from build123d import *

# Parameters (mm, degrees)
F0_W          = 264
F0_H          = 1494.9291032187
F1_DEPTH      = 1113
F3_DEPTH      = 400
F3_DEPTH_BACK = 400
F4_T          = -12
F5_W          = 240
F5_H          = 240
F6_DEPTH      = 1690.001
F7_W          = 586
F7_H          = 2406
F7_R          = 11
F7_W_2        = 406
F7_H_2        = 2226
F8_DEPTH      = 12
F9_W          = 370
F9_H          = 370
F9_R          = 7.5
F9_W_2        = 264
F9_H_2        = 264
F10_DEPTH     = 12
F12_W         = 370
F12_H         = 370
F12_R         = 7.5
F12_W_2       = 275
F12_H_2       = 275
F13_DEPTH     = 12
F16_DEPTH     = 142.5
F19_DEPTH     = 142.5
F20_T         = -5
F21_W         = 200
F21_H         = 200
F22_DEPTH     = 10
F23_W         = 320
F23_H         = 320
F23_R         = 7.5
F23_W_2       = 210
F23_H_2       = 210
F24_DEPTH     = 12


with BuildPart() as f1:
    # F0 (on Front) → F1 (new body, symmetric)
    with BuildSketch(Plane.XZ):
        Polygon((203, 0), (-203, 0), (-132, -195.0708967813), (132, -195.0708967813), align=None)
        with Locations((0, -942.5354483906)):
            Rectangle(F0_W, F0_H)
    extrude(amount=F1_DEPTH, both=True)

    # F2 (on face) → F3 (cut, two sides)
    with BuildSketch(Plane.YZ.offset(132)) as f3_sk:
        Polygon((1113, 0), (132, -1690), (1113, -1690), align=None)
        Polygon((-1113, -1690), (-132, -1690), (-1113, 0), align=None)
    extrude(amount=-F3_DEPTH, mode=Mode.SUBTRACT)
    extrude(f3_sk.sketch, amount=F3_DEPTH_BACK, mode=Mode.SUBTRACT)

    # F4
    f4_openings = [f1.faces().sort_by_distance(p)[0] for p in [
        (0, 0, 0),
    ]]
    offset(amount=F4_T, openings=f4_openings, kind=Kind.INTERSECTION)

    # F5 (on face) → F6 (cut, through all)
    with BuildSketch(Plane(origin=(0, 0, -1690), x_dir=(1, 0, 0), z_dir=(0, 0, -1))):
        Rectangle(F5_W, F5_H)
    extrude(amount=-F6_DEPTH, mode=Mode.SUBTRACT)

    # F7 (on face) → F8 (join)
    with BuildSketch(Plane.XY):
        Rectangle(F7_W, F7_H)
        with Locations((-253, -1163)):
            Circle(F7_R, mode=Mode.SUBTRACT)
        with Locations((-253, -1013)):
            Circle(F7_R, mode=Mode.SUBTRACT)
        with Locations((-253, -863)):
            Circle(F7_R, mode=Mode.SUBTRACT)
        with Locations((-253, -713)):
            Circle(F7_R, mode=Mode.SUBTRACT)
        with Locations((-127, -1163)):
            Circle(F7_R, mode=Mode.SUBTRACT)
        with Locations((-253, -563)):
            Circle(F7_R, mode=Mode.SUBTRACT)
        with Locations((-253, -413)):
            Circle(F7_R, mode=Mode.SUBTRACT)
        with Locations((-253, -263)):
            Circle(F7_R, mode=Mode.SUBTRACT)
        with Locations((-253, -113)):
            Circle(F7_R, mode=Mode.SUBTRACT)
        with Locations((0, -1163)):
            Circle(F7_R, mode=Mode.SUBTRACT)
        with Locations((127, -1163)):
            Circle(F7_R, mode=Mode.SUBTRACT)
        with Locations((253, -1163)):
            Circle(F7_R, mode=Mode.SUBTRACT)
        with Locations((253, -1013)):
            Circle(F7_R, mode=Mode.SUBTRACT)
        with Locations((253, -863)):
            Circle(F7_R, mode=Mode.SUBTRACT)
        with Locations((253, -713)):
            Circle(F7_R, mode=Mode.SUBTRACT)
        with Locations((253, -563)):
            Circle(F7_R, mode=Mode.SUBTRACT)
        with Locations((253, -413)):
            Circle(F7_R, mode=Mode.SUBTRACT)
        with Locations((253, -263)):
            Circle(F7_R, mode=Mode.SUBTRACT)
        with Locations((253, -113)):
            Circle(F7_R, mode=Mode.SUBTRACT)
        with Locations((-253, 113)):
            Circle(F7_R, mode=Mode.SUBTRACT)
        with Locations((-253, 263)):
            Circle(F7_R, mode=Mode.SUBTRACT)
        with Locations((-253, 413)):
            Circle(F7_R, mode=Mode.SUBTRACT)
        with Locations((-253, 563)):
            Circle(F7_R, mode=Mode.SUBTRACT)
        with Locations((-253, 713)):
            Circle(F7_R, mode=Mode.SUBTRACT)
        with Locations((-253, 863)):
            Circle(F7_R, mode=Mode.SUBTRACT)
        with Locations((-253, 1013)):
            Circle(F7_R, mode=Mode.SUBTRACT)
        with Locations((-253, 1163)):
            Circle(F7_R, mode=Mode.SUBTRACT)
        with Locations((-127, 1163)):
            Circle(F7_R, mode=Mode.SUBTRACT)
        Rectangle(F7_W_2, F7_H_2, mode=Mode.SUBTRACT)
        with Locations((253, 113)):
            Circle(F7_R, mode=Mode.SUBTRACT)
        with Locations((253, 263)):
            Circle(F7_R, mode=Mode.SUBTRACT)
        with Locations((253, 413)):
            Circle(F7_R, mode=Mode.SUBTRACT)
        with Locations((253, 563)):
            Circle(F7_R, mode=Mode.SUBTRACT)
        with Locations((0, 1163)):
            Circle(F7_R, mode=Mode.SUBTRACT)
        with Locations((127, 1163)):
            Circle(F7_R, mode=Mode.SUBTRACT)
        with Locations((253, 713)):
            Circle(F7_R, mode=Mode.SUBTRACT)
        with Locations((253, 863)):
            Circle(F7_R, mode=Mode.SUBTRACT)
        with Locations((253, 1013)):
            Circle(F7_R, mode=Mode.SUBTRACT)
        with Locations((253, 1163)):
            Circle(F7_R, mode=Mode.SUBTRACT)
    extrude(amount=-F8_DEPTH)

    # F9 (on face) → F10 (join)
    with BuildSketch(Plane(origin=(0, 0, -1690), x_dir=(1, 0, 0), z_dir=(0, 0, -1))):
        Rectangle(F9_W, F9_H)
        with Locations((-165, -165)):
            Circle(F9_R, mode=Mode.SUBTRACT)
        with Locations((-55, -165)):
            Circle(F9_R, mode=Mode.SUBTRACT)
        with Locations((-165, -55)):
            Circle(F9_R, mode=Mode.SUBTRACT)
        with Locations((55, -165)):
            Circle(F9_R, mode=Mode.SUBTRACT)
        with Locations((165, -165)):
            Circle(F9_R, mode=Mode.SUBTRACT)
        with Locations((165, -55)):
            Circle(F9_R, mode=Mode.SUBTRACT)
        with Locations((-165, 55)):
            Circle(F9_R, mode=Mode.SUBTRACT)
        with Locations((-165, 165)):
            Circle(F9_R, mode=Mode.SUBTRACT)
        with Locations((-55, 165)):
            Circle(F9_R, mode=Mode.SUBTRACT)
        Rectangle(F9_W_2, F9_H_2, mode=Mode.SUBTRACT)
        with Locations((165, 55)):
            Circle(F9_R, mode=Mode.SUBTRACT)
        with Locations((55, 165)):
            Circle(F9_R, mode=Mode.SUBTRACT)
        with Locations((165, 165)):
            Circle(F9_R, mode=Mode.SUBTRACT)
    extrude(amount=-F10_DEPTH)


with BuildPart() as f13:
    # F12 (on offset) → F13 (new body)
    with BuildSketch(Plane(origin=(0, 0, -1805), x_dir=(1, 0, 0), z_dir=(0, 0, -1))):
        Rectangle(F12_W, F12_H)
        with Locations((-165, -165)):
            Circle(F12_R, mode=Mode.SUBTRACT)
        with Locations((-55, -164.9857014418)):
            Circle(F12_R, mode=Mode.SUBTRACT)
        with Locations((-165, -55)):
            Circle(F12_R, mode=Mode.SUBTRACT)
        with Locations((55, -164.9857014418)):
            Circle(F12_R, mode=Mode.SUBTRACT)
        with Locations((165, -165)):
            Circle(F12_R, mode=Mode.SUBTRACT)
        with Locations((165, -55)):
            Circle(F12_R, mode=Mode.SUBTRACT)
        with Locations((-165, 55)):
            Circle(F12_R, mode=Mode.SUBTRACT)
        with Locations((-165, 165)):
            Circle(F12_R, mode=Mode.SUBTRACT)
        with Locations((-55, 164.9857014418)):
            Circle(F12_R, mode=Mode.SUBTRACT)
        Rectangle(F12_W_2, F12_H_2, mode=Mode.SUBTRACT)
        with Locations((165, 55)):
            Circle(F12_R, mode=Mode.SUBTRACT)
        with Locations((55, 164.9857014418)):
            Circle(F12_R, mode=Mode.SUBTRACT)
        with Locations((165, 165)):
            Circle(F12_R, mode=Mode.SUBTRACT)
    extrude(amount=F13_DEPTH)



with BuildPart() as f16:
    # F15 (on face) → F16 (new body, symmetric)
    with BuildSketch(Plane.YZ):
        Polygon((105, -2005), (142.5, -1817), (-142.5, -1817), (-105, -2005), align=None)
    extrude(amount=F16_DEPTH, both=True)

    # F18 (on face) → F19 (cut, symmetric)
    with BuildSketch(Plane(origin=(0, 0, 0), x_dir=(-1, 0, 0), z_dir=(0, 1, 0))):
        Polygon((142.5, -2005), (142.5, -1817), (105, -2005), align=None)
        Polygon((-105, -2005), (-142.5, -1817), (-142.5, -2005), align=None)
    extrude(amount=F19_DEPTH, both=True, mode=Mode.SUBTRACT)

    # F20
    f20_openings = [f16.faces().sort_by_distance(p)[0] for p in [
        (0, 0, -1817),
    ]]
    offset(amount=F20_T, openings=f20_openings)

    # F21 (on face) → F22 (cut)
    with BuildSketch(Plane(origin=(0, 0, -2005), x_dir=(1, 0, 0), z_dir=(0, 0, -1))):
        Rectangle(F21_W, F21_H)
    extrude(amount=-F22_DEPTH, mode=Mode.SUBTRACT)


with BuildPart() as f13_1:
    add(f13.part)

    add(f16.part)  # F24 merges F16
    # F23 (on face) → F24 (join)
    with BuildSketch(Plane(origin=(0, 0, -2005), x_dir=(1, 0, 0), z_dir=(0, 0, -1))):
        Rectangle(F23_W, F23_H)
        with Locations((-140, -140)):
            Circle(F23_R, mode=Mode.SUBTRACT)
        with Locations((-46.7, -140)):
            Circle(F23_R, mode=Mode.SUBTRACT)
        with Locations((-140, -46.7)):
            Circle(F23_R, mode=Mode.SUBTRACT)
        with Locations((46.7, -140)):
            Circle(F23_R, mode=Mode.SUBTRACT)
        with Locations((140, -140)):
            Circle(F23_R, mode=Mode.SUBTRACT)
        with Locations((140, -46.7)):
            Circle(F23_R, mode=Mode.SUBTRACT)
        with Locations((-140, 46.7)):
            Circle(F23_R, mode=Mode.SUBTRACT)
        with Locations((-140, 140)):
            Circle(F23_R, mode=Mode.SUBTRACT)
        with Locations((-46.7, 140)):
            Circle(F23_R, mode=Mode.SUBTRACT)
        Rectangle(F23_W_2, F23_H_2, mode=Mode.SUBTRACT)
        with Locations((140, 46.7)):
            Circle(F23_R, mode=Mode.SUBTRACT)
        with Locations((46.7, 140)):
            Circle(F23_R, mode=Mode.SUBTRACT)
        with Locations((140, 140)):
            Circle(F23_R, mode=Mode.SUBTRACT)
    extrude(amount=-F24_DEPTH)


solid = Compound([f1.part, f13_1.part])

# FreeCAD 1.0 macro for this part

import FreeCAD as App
import Part
import Sketcher
from FreeCAD import Vector
Q = App.Units.Quantity


def faces_at(feature, points):
    """Names of the faces that lie closest to the given points."""
    faces = feature.Shape.Faces
    near = lambda p: min(range(len(faces)), key=lambda i: faces[i].distToShape(Part.Vertex(*p))[0])
    return sorted({f"Face{near(p) + 1}" for p in points})


def add_polygon(sketch, points):
    """Adds a closed chain of lines whose ends are joined by coincident constraints."""
    first, n = sketch.GeometryCount, len(points)
    for a, b in zip(points, points[1:] + points[:1]):
        sketch.addGeometry(Part.LineSegment(App.Vector(*a, 0), App.Vector(*b, 0)), False)
    for i in range(n):
        sketch.addConstraint(Sketcher.Constraint("Coincident", first + i, 2, first + (i + 1) % n, 1))

doc = App.newDocument("Part")
body = doc.addObject("PartDesign::Body", "Body")
body.AllowCompound = True

# Sketch on XZ plane
sketch1 = body.newObject("Sketcher::SketchObject", "Sketch")
sketch1.AttachmentSupport = (doc.getObject("XZ_Plane"), [""])
sketch1.MapMode = "FlatFace"
add_polygon(sketch1, [(203, 0), (-203, 0), (-132, -195), (-132, -1690), (132, -1690), (132, -195)])  # lines 0-5
sketch1.addConstraint(Sketcher.Constraint("Horizontal", 0))
sketch1.addConstraint(Sketcher.Constraint("Vertical", 2))
sketch1.addConstraint(Sketcher.Constraint("Horizontal", 3))
sketch1.addConstraint(Sketcher.Constraint("Vertical", 4))
sketch1.addConstraint(Sketcher.Constraint("Symmetric", 0, 2, 5, 2, -1, 1))
sketch1.addConstraint(Sketcher.Constraint("Symmetric", 1, 2, 4, 2, -2))
sketch1.addConstraint(Sketcher.Constraint("DistanceX", 0, 2, 0, 1, 406.0))
sketch1.addConstraint(Sketcher.Constraint("DistanceX", 3, 1, 3, 2, 264.0))
sketch1.addConstraint(Sketcher.Constraint("Angle", 1, Q("-70 deg")))
sketch1.addConstraint(Sketcher.Constraint("DistanceY", 2, 2, -1, 1, 1690.0))
pad1 = body.newObject("PartDesign::Pad", "Pad")
pad1.Profile = sketch1
pad1.Length = 2226
pad1.Midplane = True

# Sketch on YZ plane
sketch2 = body.newObject("Sketcher::SketchObject", "Sketch001")
sketch2.AttachmentSupport = (doc.getObject("YZ_Plane"), [""])
sketch2.MapMode = "FlatFace"
sketch2.AttachmentOffset = App.Placement(Vector(0, 0, 132), App.Rotation())
add_polygon(sketch2, [(1113, 0), (132, -1690), (1113, -1690)])  # lines 0-2
add_polygon(sketch2, [(-1113, -1690), (-132, -1690), (-1113, 0)])  # lines 3-5
sketch2.addConstraint(Sketcher.Constraint("Horizontal", 1))
sketch2.addConstraint(Sketcher.Constraint("Vertical", 2))
sketch2.addConstraint(Sketcher.Constraint("Horizontal", 3))
sketch2.addConstraint(Sketcher.Constraint("Vertical", 5))
sketch2.addConstraint(Sketcher.Constraint("Symmetric", 2, 2, 4, 2, -1, 1))
sketch2.addConstraint(Sketcher.Constraint("Symmetric", 0, 2, 3, 2, -2))
sketch2.addConstraint(Sketcher.Constraint("PointOnObject", 2, 2, -1))
sketch2.addConstraint(Sketcher.Constraint("DistanceX", 1, 1, 1, 2, 981.0))
sketch2.addConstraint(Sketcher.Constraint("DistanceY", 2, 1, 2, 2, 1690.0))
sketch2.addConstraint(Sketcher.Constraint("DistanceX", -1, 1, 0, 2, 132.0))
pocket1 = body.newObject("PartDesign::Pocket", "Pocket")
pocket1.Profile = sketch2
pocket1.Type = "ThroughAll"
pocket1.Midplane = True
doc.recompute()

thickness = body.newObject("PartDesign::Thickness", "Thickness")
thickness.Base = (pocket1, faces_at(pocket1, [(0, 0, 0)]))
thickness.Value = 12
thickness.Reversed = True
thickness.Join = "Intersection"

# Sketch on XY plane
sketch3 = body.newObject("Sketcher::SketchObject", "Sketch002")
sketch3.AttachmentSupport = (doc.getObject("XY_Plane"), [""])
sketch3.MapMode = "FlatFace"
sketch3.AttachmentOffset = App.Placement(Vector(0, 0, -1690), App.Rotation())
add_polygon(sketch3, [(-120, -120), (-120, 120), (120, 120), (120, -120)])  # lines 0-3
sketch3.addConstraint(Sketcher.Constraint("Vertical", 0))
sketch3.addConstraint(Sketcher.Constraint("Horizontal", 1))
sketch3.addConstraint(Sketcher.Constraint("Vertical", 2))
sketch3.addConstraint(Sketcher.Constraint("Horizontal", 3))
sketch3.addConstraint(Sketcher.Constraint("Symmetric", 0, 2, 2, 2, -1, 1))
sketch3.addConstraint(Sketcher.Constraint("Equal", 3, 0))
sketch3.addConstraint(Sketcher.Constraint("DistanceX", 1, 1, 1, 2, 240.0))
pocket2 = body.newObject("PartDesign::Pocket", "Pocket001")
pocket2.Profile = sketch3
pocket2.Type = "ThroughAll"
pocket2.Reversed = True

# Sketch on XY plane
sketch4 = body.newObject("Sketcher::SketchObject", "Sketch003")
sketch4.AttachmentSupport = (doc.getObject("XY_Plane"), [""])
sketch4.MapMode = "FlatFace"
add_polygon(sketch4, [(-293, 1203), (-293, -1203), (293, -1203), (293, 1203)])  # lines 0-3
sketch4.addGeometry(Part.Circle(Vector(-253, -1163, 0), Vector(0, 0, 1), 11), False)  # 4
sketch4.addGeometry(Part.Circle(Vector(-253, -1013, 0), Vector(0, 0, 1), 11), False)  # 5
sketch4.addGeometry(Part.Circle(Vector(-253, -863, 0), Vector(0, 0, 1), 11), False)  # 6
sketch4.addGeometry(Part.Circle(Vector(-253, -713, 0), Vector(0, 0, 1), 11), False)  # 7
sketch4.addGeometry(Part.Circle(Vector(-127, -1163, 0), Vector(0, 0, 1), 11), False)  # 8
sketch4.addGeometry(Part.Circle(Vector(-253, -563, 0), Vector(0, 0, 1), 11), False)  # 9
sketch4.addGeometry(Part.Circle(Vector(-253, -413, 0), Vector(0, 0, 1), 11), False)  # 10
sketch4.addGeometry(Part.Circle(Vector(-253, -263, 0), Vector(0, 0, 1), 11), False)  # 11
sketch4.addGeometry(Part.Circle(Vector(-253, -113, 0), Vector(0, 0, 1), 11), False)  # 12
sketch4.addGeometry(Part.Circle(Vector(0, -1163, 0), Vector(0, 0, 1), 11), False)  # 13
sketch4.addGeometry(Part.Circle(Vector(127, -1163, 0), Vector(0, 0, 1), 11), False)  # 14
sketch4.addGeometry(Part.Circle(Vector(253, -1163, 0), Vector(0, 0, 1), 11), False)  # 15
sketch4.addGeometry(Part.Circle(Vector(253, -1013, 0), Vector(0, 0, 1), 11), False)  # 16
sketch4.addGeometry(Part.Circle(Vector(253, -863, 0), Vector(0, 0, 1), 11), False)  # 17
sketch4.addGeometry(Part.Circle(Vector(253, -713, 0), Vector(0, 0, 1), 11), False)  # 18
sketch4.addGeometry(Part.Circle(Vector(253, -563, 0), Vector(0, 0, 1), 11), False)  # 19
sketch4.addGeometry(Part.Circle(Vector(253, -413, 0), Vector(0, 0, 1), 11), False)  # 20
sketch4.addGeometry(Part.Circle(Vector(253, -263, 0), Vector(0, 0, 1), 11), False)  # 21
sketch4.addGeometry(Part.Circle(Vector(253, -113, 0), Vector(0, 0, 1), 11), False)  # 22
sketch4.addGeometry(Part.Circle(Vector(-253, 113, 0), Vector(0, 0, 1), 11), False)  # 23
sketch4.addGeometry(Part.Circle(Vector(-253, 263, 0), Vector(0, 0, 1), 11), False)  # 24
sketch4.addGeometry(Part.Circle(Vector(-253, 413, 0), Vector(0, 0, 1), 11), False)  # 25
sketch4.addGeometry(Part.Circle(Vector(-253, 563, 0), Vector(0, 0, 1), 11), False)  # 26
sketch4.addGeometry(Part.Circle(Vector(-253, 713, 0), Vector(0, 0, 1), 11), False)  # 27
sketch4.addGeometry(Part.Circle(Vector(-253, 863, 0), Vector(0, 0, 1), 11), False)  # 28
sketch4.addGeometry(Part.Circle(Vector(-253, 1013, 0), Vector(0, 0, 1), 11), False)  # 29
sketch4.addGeometry(Part.Circle(Vector(-253, 1163, 0), Vector(0, 0, 1), 11), False)  # 30
sketch4.addGeometry(Part.Circle(Vector(-127, 1163, 0), Vector(0, 0, 1), 11), False)  # 31
add_polygon(sketch4, [(203, -1113), (-203, -1113), (-203, 1113), (203, 1113)])  # lines 32-35
sketch4.addGeometry(Part.Circle(Vector(253, 113, 0), Vector(0, 0, 1), 11), False)  # 36
sketch4.addGeometry(Part.Circle(Vector(253, 263, 0), Vector(0, 0, 1), 11), False)  # 37
sketch4.addGeometry(Part.Circle(Vector(253, 413, 0), Vector(0, 0, 1), 11), False)  # 38
sketch4.addGeometry(Part.Circle(Vector(253, 563, 0), Vector(0, 0, 1), 11), False)  # 39
sketch4.addGeometry(Part.Circle(Vector(0, 1163, 0), Vector(0, 0, 1), 11), False)  # 40
sketch4.addGeometry(Part.Circle(Vector(127, 1163, 0), Vector(0, 0, 1), 11), False)  # 41
sketch4.addGeometry(Part.Circle(Vector(253, 713, 0), Vector(0, 0, 1), 11), False)  # 42
sketch4.addGeometry(Part.Circle(Vector(253, 863, 0), Vector(0, 0, 1), 11), False)  # 43
sketch4.addGeometry(Part.Circle(Vector(253, 1013, 0), Vector(0, 0, 1), 11), False)  # 44
sketch4.addGeometry(Part.Circle(Vector(253, 1163, 0), Vector(0, 0, 1), 11), False)  # 45
sketch4.addConstraint(Sketcher.Constraint("Vertical", 0))
sketch4.addConstraint(Sketcher.Constraint("Horizontal", 1))
sketch4.addConstraint(Sketcher.Constraint("Vertical", 2))
sketch4.addConstraint(Sketcher.Constraint("Horizontal", 3))
sketch4.addConstraint(Sketcher.Constraint("Horizontal", 32))
sketch4.addConstraint(Sketcher.Constraint("Vertical", 33))
sketch4.addConstraint(Sketcher.Constraint("Horizontal", 34))
sketch4.addConstraint(Sketcher.Constraint("Vertical", 35))
sketch4.addConstraint(Sketcher.Constraint("Equal", 4, 5))
sketch4.addConstraint(Sketcher.Constraint("Equal", 5, 6))
sketch4.addConstraint(Sketcher.Constraint("Equal", 6, 7))
sketch4.addConstraint(Sketcher.Constraint("Equal", 7, 8))
sketch4.addConstraint(Sketcher.Constraint("Equal", 8, 9))
sketch4.addConstraint(Sketcher.Constraint("Equal", 9, 10))
sketch4.addConstraint(Sketcher.Constraint("Equal", 10, 11))
sketch4.addConstraint(Sketcher.Constraint("Equal", 11, 12))
sketch4.addConstraint(Sketcher.Constraint("Equal", 12, 13))
sketch4.addConstraint(Sketcher.Constraint("Equal", 13, 14))
sketch4.addConstraint(Sketcher.Constraint("Equal", 14, 15))
sketch4.addConstraint(Sketcher.Constraint("Equal", 15, 16))
sketch4.addConstraint(Sketcher.Constraint("Equal", 16, 17))
sketch4.addConstraint(Sketcher.Constraint("Equal", 17, 18))
sketch4.addConstraint(Sketcher.Constraint("Equal", 18, 19))
sketch4.addConstraint(Sketcher.Constraint("Equal", 19, 20))
sketch4.addConstraint(Sketcher.Constraint("Equal", 20, 21))
sketch4.addConstraint(Sketcher.Constraint("Equal", 21, 22))
sketch4.addConstraint(Sketcher.Constraint("Equal", 22, 23))
sketch4.addConstraint(Sketcher.Constraint("Equal", 23, 24))
sketch4.addConstraint(Sketcher.Constraint("Equal", 24, 25))
sketch4.addConstraint(Sketcher.Constraint("Equal", 25, 26))
sketch4.addConstraint(Sketcher.Constraint("Equal", 26, 27))
sketch4.addConstraint(Sketcher.Constraint("Equal", 27, 28))
sketch4.addConstraint(Sketcher.Constraint("Equal", 28, 29))
sketch4.addConstraint(Sketcher.Constraint("Equal", 29, 30))
sketch4.addConstraint(Sketcher.Constraint("Equal", 30, 31))
sketch4.addConstraint(Sketcher.Constraint("Equal", 31, 36))
sketch4.addConstraint(Sketcher.Constraint("Equal", 36, 37))
sketch4.addConstraint(Sketcher.Constraint("Equal", 37, 38))
sketch4.addConstraint(Sketcher.Constraint("Equal", 38, 39))
sketch4.addConstraint(Sketcher.Constraint("Equal", 39, 40))
sketch4.addConstraint(Sketcher.Constraint("Equal", 40, 41))
sketch4.addConstraint(Sketcher.Constraint("Equal", 41, 42))
sketch4.addConstraint(Sketcher.Constraint("Equal", 42, 43))
sketch4.addConstraint(Sketcher.Constraint("Equal", 43, 44))
sketch4.addConstraint(Sketcher.Constraint("Equal", 44, 45))
sketch4.addConstraint(Sketcher.Constraint("Symmetric", 22, 3, 23, 3, -1, 1))
sketch4.addConstraint(Sketcher.Constraint("Symmetric", 21, 3, 24, 3, -1, 1))
sketch4.addConstraint(Sketcher.Constraint("Symmetric", 20, 3, 25, 3, -1, 1))
sketch4.addConstraint(Sketcher.Constraint("Symmetric", 19, 3, 26, 3, -1, 1))
sketch4.addConstraint(Sketcher.Constraint("Symmetric", 18, 3, 27, 3, -1, 1))
sketch4.addConstraint(Sketcher.Constraint("Symmetric", 17, 3, 28, 3, -1, 1))
sketch4.addConstraint(Sketcher.Constraint("Symmetric", 16, 3, 29, 3, -1, 1))
sketch4.addConstraint(Sketcher.Constraint("Symmetric", 15, 3, 30, 3, -1, 1))
sketch4.addConstraint(Sketcher.Constraint("Symmetric", 14, 3, 31, 3, -1, 1))
sketch4.addConstraint(Sketcher.Constraint("Symmetric", 12, 3, 36, 3, -1, 1))
sketch4.addConstraint(Sketcher.Constraint("Symmetric", 11, 3, 37, 3, -1, 1))
sketch4.addConstraint(Sketcher.Constraint("Symmetric", 10, 3, 38, 3, -1, 1))
sketch4.addConstraint(Sketcher.Constraint("Symmetric", 9, 3, 39, 3, -1, 1))
sketch4.addConstraint(Sketcher.Constraint("Symmetric", 13, 3, 40, 3, -1, 1))
sketch4.addConstraint(Sketcher.Constraint("Symmetric", 8, 3, 41, 3, -1, 1))
sketch4.addConstraint(Sketcher.Constraint("Symmetric", 7, 3, 42, 3, -1, 1))
sketch4.addConstraint(Sketcher.Constraint("Symmetric", 6, 3, 43, 3, -1, 1))
sketch4.addConstraint(Sketcher.Constraint("Symmetric", 5, 3, 44, 3, -1, 1))
sketch4.addConstraint(Sketcher.Constraint("Symmetric", 4, 3, 45, 3, -1, 1))
sketch4.addConstraint(Sketcher.Constraint("Symmetric", 0, 2, 2, 2, -1, 1))
sketch4.addConstraint(Sketcher.Constraint("Symmetric", 32, 2, 34, 2, -1, 1))
sketch4.addConstraint(Sketcher.Constraint("Symmetric", 8, 3, 14, 3, -2))
sketch4.addConstraint(Sketcher.Constraint("Symmetric", 4, 3, 15, 3, -2))
sketch4.addConstraint(Sketcher.Constraint("Symmetric", 5, 3, 16, 3, -2))
sketch4.addConstraint(Sketcher.Constraint("Symmetric", 6, 3, 17, 3, -2))
sketch4.addConstraint(Sketcher.Constraint("Symmetric", 7, 3, 18, 3, -2))
sketch4.addConstraint(Sketcher.Constraint("Symmetric", 9, 3, 19, 3, -2))
sketch4.addConstraint(Sketcher.Constraint("Symmetric", 10, 3, 20, 3, -2))
sketch4.addConstraint(Sketcher.Constraint("Symmetric", 11, 3, 21, 3, -2))
sketch4.addConstraint(Sketcher.Constraint("Symmetric", 12, 3, 22, 3, -2))
sketch4.addConstraint(Sketcher.Constraint("PointOnObject", 13, 3, -2))
sketch4.addConstraint(Sketcher.Constraint("Horizontal", 4, 3, 8, 3))
sketch4.addConstraint(Sketcher.Constraint("Horizontal", 8, 3, 13, 3))
sketch4.addConstraint(Sketcher.Constraint("Vertical", 4, 3, 5, 3))
sketch4.addConstraint(Sketcher.Constraint("Vertical", 5, 3, 6, 3))
sketch4.addConstraint(Sketcher.Constraint("Vertical", 6, 3, 7, 3))
sketch4.addConstraint(Sketcher.Constraint("Vertical", 7, 3, 9, 3))
sketch4.addConstraint(Sketcher.Constraint("Vertical", 9, 3, 10, 3))
sketch4.addConstraint(Sketcher.Constraint("Vertical", 10, 3, 11, 3))
sketch4.addConstraint(Sketcher.Constraint("Vertical", 11, 3, 12, 3))
sketch4.addConstraint(Sketcher.Constraint("Diameter", 4, 22.0))
sketch4.addConstraint(Sketcher.Constraint("DistanceX", 1, 1, 1, 2, 586.0))
sketch4.addConstraint(Sketcher.Constraint("DistanceX", 32, 2, 32, 1, 406.0))
sketch4.addConstraint(Sketcher.Constraint("DistanceY", 0, 2, 0, 1, 2406.0))
sketch4.addConstraint(Sketcher.Constraint("DistanceY", 33, 1, 33, 2, 2226.0))
sketch4.addConstraint(Sketcher.Constraint("DistanceX", 4, 3, -1, 1, 253.0))
sketch4.addConstraint(Sketcher.Constraint("DistanceY", 4, 3, -1, 1, 1163.0))
sketch4.addConstraint(Sketcher.Constraint("DistanceY", 5, 3, -1, 1, 1013.0))
sketch4.addConstraint(Sketcher.Constraint("DistanceY", 6, 3, -1, 1, 863.0))
sketch4.addConstraint(Sketcher.Constraint("DistanceY", 7, 3, -1, 1, 713.0))
sketch4.addConstraint(Sketcher.Constraint("DistanceX", 8, 3, -1, 1, 127.0))
sketch4.addConstraint(Sketcher.Constraint("DistanceY", 9, 3, -1, 1, 563.0))
sketch4.addConstraint(Sketcher.Constraint("DistanceY", 10, 3, -1, 1, 413.0))
sketch4.addConstraint(Sketcher.Constraint("DistanceY", 11, 3, -1, 1, 263.0))
sketch4.addConstraint(Sketcher.Constraint("DistanceY", 12, 3, -1, 1, 113.0))
pad2 = body.newObject("PartDesign::Pad", "Pad001")
pad2.Profile = sketch4
pad2.Length = 12
pad2.Reversed = True

# Sketch on XY plane
sketch5 = body.newObject("Sketcher::SketchObject", "Sketch004")
sketch5.AttachmentSupport = (doc.getObject("XY_Plane"), [""])
sketch5.MapMode = "FlatFace"
sketch5.AttachmentOffset = App.Placement(Vector(0, 0, -1690), App.Rotation())
add_polygon(sketch5, [(-185, -185), (-185, 185), (185, 185), (185, -185)])  # lines 0-3
sketch5.addGeometry(Part.Circle(Vector(-165, 165, 0), Vector(0, 0, 1), 8), False)  # 4
sketch5.addGeometry(Part.Circle(Vector(-55, 165, 0), Vector(0, 0, 1), 8), False)  # 5
sketch5.addGeometry(Part.Circle(Vector(-165, 55, 0), Vector(0, 0, 1), 8), False)  # 6
sketch5.addGeometry(Part.Circle(Vector(55, 165, 0), Vector(0, 0, 1), 8), False)  # 7
sketch5.addGeometry(Part.Circle(Vector(165, 165, 0), Vector(0, 0, 1), 8), False)  # 8
sketch5.addGeometry(Part.Circle(Vector(165, 55, 0), Vector(0, 0, 1), 8), False)  # 9
sketch5.addGeometry(Part.Circle(Vector(-165, -55, 0), Vector(0, 0, 1), 8), False)  # 10
sketch5.addGeometry(Part.Circle(Vector(-165, -165, 0), Vector(0, 0, 1), 8), False)  # 11
sketch5.addGeometry(Part.Circle(Vector(-55, -165, 0), Vector(0, 0, 1), 8), False)  # 12
add_polygon(sketch5, [(132, 132), (-132, 132), (-132, -132), (132, -132)])  # lines 13-16
sketch5.addGeometry(Part.Circle(Vector(165, -55, 0), Vector(0, 0, 1), 8), False)  # 17
sketch5.addGeometry(Part.Circle(Vector(55, -165, 0), Vector(0, 0, 1), 8), False)  # 18
sketch5.addGeometry(Part.Circle(Vector(165, -165, 0), Vector(0, 0, 1), 8), False)  # 19
sketch5.addConstraint(Sketcher.Constraint("Vertical", 0))
sketch5.addConstraint(Sketcher.Constraint("Horizontal", 1))
sketch5.addConstraint(Sketcher.Constraint("Vertical", 2))
sketch5.addConstraint(Sketcher.Constraint("Horizontal", 3))
sketch5.addConstraint(Sketcher.Constraint("Horizontal", 13))
sketch5.addConstraint(Sketcher.Constraint("Vertical", 14))
sketch5.addConstraint(Sketcher.Constraint("Horizontal", 15))
sketch5.addConstraint(Sketcher.Constraint("Vertical", 16))
sketch5.addConstraint(Sketcher.Constraint("Equal", 4, 5))
sketch5.addConstraint(Sketcher.Constraint("Equal", 5, 6))
sketch5.addConstraint(Sketcher.Constraint("Equal", 6, 7))
sketch5.addConstraint(Sketcher.Constraint("Equal", 7, 8))
sketch5.addConstraint(Sketcher.Constraint("Equal", 8, 9))
sketch5.addConstraint(Sketcher.Constraint("Equal", 9, 10))
sketch5.addConstraint(Sketcher.Constraint("Equal", 10, 11))
sketch5.addConstraint(Sketcher.Constraint("Equal", 11, 12))
sketch5.addConstraint(Sketcher.Constraint("Equal", 12, 17))
sketch5.addConstraint(Sketcher.Constraint("Equal", 17, 18))
sketch5.addConstraint(Sketcher.Constraint("Equal", 18, 19))
sketch5.addConstraint(Sketcher.Constraint("Symmetric", 9, 3, 10, 3, -1, 1))
sketch5.addConstraint(Sketcher.Constraint("Symmetric", 8, 3, 11, 3, -1, 1))
sketch5.addConstraint(Sketcher.Constraint("Symmetric", 7, 3, 12, 3, -1, 1))
sketch5.addConstraint(Sketcher.Constraint("Symmetric", 6, 3, 17, 3, -1, 1))
sketch5.addConstraint(Sketcher.Constraint("Symmetric", 5, 3, 18, 3, -1, 1))
sketch5.addConstraint(Sketcher.Constraint("Symmetric", 4, 3, 19, 3, -1, 1))
sketch5.addConstraint(Sketcher.Constraint("Symmetric", 0, 2, 2, 2, -1, 1))
sketch5.addConstraint(Sketcher.Constraint("Symmetric", 13, 2, 15, 2, -1, 1))
sketch5.addConstraint(Sketcher.Constraint("Symmetric", 5, 3, 7, 3, -2))
sketch5.addConstraint(Sketcher.Constraint("Symmetric", 4, 3, 8, 3, -2))
sketch5.addConstraint(Sketcher.Constraint("Symmetric", 6, 3, 9, 3, -2))
sketch5.addConstraint(Sketcher.Constraint("Horizontal", 4, 3, 5, 3))
sketch5.addConstraint(Sketcher.Constraint("Vertical", 4, 3, 6, 3))
sketch5.addConstraint(Sketcher.Constraint("Equal", 3, 0))
sketch5.addConstraint(Sketcher.Constraint("Equal", 15, 14))
sketch5.addConstraint(Sketcher.Constraint("Diameter", 4, 15.0))
sketch5.addConstraint(Sketcher.Constraint("DistanceX", 1, 1, 1, 2, 370.0))
sketch5.addConstraint(Sketcher.Constraint("DistanceX", 13, 2, 13, 1, 264.0))
sketch5.addConstraint(Sketcher.Constraint("DistanceX", 4, 3, -1, 1, 165.0))
sketch5.addConstraint(Sketcher.Constraint("DistanceY", -1, 1, 4, 3, 165.0))
sketch5.addConstraint(Sketcher.Constraint("DistanceX", 5, 3, -1, 1, 55.0))
sketch5.addConstraint(Sketcher.Constraint("DistanceY", -1, 1, 6, 3, 55.0))
pad3 = body.newObject("PartDesign::Pad", "Pad002")
pad3.Profile = sketch5
pad3.Length = 12
body2 = doc.addObject("PartDesign::Body", "Body001")

# Sketch on XY plane
sketch6 = body2.newObject("Sketcher::SketchObject", "Sketch005")
sketch6.AttachmentSupport = (doc.getObject("XY_Plane001"), [""])
sketch6.MapMode = "FlatFace"
sketch6.AttachmentOffset = App.Placement(Vector(0, 0, -1805), App.Rotation())
add_polygon(sketch6, [(-185, -185), (-185, 185), (185, 185), (185, -185)])  # lines 0-3
sketch6.addGeometry(Part.Circle(Vector(-165, 165, 0), Vector(0, 0, 1), 8), False)  # 4
sketch6.addGeometry(Part.Circle(Vector(-55, 165, 0), Vector(0, 0, 1), 8), False)  # 5
sketch6.addGeometry(Part.Circle(Vector(-165, 55, 0), Vector(0, 0, 1), 8), False)  # 6
sketch6.addGeometry(Part.Circle(Vector(55, 165, 0), Vector(0, 0, 1), 8), False)  # 7
sketch6.addGeometry(Part.Circle(Vector(165, 165, 0), Vector(0, 0, 1), 8), False)  # 8
sketch6.addGeometry(Part.Circle(Vector(165, 55, 0), Vector(0, 0, 1), 8), False)  # 9
sketch6.addGeometry(Part.Circle(Vector(-165, -55, 0), Vector(0, 0, 1), 8), False)  # 10
sketch6.addGeometry(Part.Circle(Vector(-165, -165, 0), Vector(0, 0, 1), 8), False)  # 11
sketch6.addGeometry(Part.Circle(Vector(-55, -165, 0), Vector(0, 0, 1), 8), False)  # 12
add_polygon(sketch6, [(138, 138), (-138, 138), (-138, -138), (138, -138)])  # lines 13-16
sketch6.addGeometry(Part.Circle(Vector(165, -55, 0), Vector(0, 0, 1), 8), False)  # 17
sketch6.addGeometry(Part.Circle(Vector(55, -165, 0), Vector(0, 0, 1), 8), False)  # 18
sketch6.addGeometry(Part.Circle(Vector(165, -165, 0), Vector(0, 0, 1), 8), False)  # 19
sketch6.addConstraint(Sketcher.Constraint("Vertical", 0))
sketch6.addConstraint(Sketcher.Constraint("Horizontal", 1))
sketch6.addConstraint(Sketcher.Constraint("Vertical", 2))
sketch6.addConstraint(Sketcher.Constraint("Horizontal", 3))
sketch6.addConstraint(Sketcher.Constraint("Horizontal", 13))
sketch6.addConstraint(Sketcher.Constraint("Vertical", 14))
sketch6.addConstraint(Sketcher.Constraint("Horizontal", 15))
sketch6.addConstraint(Sketcher.Constraint("Vertical", 16))
sketch6.addConstraint(Sketcher.Constraint("Equal", 4, 5))
sketch6.addConstraint(Sketcher.Constraint("Equal", 5, 6))
sketch6.addConstraint(Sketcher.Constraint("Equal", 6, 7))
sketch6.addConstraint(Sketcher.Constraint("Equal", 7, 8))
sketch6.addConstraint(Sketcher.Constraint("Equal", 8, 9))
sketch6.addConstraint(Sketcher.Constraint("Equal", 9, 10))
sketch6.addConstraint(Sketcher.Constraint("Equal", 10, 11))
sketch6.addConstraint(Sketcher.Constraint("Equal", 11, 12))
sketch6.addConstraint(Sketcher.Constraint("Equal", 12, 17))
sketch6.addConstraint(Sketcher.Constraint("Equal", 17, 18))
sketch6.addConstraint(Sketcher.Constraint("Equal", 18, 19))
sketch6.addConstraint(Sketcher.Constraint("Symmetric", 9, 3, 10, 3, -1, 1))
sketch6.addConstraint(Sketcher.Constraint("Symmetric", 8, 3, 11, 3, -1, 1))
sketch6.addConstraint(Sketcher.Constraint("Symmetric", 7, 3, 12, 3, -1, 1))
sketch6.addConstraint(Sketcher.Constraint("Symmetric", 6, 3, 17, 3, -1, 1))
sketch6.addConstraint(Sketcher.Constraint("Symmetric", 5, 3, 18, 3, -1, 1))
sketch6.addConstraint(Sketcher.Constraint("Symmetric", 4, 3, 19, 3, -1, 1))
sketch6.addConstraint(Sketcher.Constraint("Symmetric", 0, 2, 2, 2, -1, 1))
sketch6.addConstraint(Sketcher.Constraint("Symmetric", 13, 2, 15, 2, -1, 1))
sketch6.addConstraint(Sketcher.Constraint("Symmetric", 5, 3, 7, 3, -2))
sketch6.addConstraint(Sketcher.Constraint("Symmetric", 4, 3, 8, 3, -2))
sketch6.addConstraint(Sketcher.Constraint("Symmetric", 6, 3, 9, 3, -2))
sketch6.addConstraint(Sketcher.Constraint("Vertical", 4, 3, 6, 3))
sketch6.addConstraint(Sketcher.Constraint("Equal", 3, 0))
sketch6.addConstraint(Sketcher.Constraint("Equal", 15, 14))
sketch6.addConstraint(Sketcher.Constraint("Diameter", 4, 15.0))
sketch6.addConstraint(Sketcher.Constraint("DistanceX", 1, 1, 1, 2, 370.0))
sketch6.addConstraint(Sketcher.Constraint("DistanceX", 13, 2, 13, 1, 275.0))
sketch6.addConstraint(Sketcher.Constraint("DistanceX", 4, 3, -1, 1, 165.0))
sketch6.addConstraint(Sketcher.Constraint("DistanceY", -1, 1, 4, 3, 165.0))
sketch6.addConstraint(Sketcher.Constraint("DistanceX", 5, 3, -1, 1, 55.0))
sketch6.addConstraint(Sketcher.Constraint("DistanceY", -1, 1, 6, 3, 55.0))
sketch6.addConstraint(Sketcher.Constraint("DistanceY", -1, 1, 5, 3, 164.985701))
pad4 = body2.newObject("PartDesign::Pad", "Pad003")
pad4.Profile = sketch6
pad4.Length = 12
pad4.Reversed = True
body3 = doc.addObject("PartDesign::Body", "Body002")

# Sketch on YZ plane
sketch7 = body3.newObject("Sketcher::SketchObject", "Sketch006")
sketch7.AttachmentSupport = (doc.getObject("YZ_Plane002"), [""])
sketch7.MapMode = "FlatFace"
add_polygon(sketch7, [(105, -2005), (142, -1817), (-142, -1817), (-105, -2005)])  # lines 0-3
sketch7.addConstraint(Sketcher.Constraint("Horizontal", 1))
sketch7.addConstraint(Sketcher.Constraint("Horizontal", 3))
sketch7.addConstraint(Sketcher.Constraint("Equal", 0, 2))
sketch7.addConstraint(Sketcher.Constraint("DistanceX", 1, 2, 1, 1, 285.0))
sketch7.addConstraint(Sketcher.Constraint("DistanceX", 3, 1, 3, 2, 210.0))
sketch7.addConstraint(Sketcher.Constraint("DistanceY", 0, 2, -1, 1, 1817.0))
sketch7.addConstraint(Sketcher.Constraint("DistanceX", 2, 2, -1, 1, 105.0))
sketch7.addConstraint(Sketcher.Constraint("DistanceY", 2, 2, -1, 1, 2005.0))
pad5 = body3.newObject("PartDesign::Pad", "Pad004")
pad5.Profile = sketch7
pad5.Length = 285
pad5.Midplane = True

# Sketch on XZ plane
sketch8 = body3.newObject("Sketcher::SketchObject", "Sketch007")
sketch8.AttachmentSupport = (doc.getObject("XZ_Plane002"), [""])
sketch8.MapMode = "FlatFace"
add_polygon(sketch8, [(-142, -2005), (-142, -1817), (-105, -2005)])  # lines 0-2
add_polygon(sketch8, [(105, -2005), (142, -1817), (142, -2005)])  # lines 3-5
sketch8.addConstraint(Sketcher.Constraint("Vertical", 0))
sketch8.addConstraint(Sketcher.Constraint("Horizontal", 2))
sketch8.addConstraint(Sketcher.Constraint("Vertical", 4))
sketch8.addConstraint(Sketcher.Constraint("Horizontal", 5))
sketch8.addConstraint(Sketcher.Constraint("Symmetric", 0, 2, 3, 2, -2))
sketch8.addConstraint(Sketcher.Constraint("Symmetric", 1, 2, 5, 2, -2))
sketch8.addConstraint(Sketcher.Constraint("DistanceY", 0, 1, 0, 2, 188.0))
sketch8.addConstraint(Sketcher.Constraint("DistanceX", 2, 2, 2, 1, 37.5))
sketch8.addConstraint(Sketcher.Constraint("DistanceY", 0, 2, -1, 1, 1817.0))
sketch8.addConstraint(Sketcher.Constraint("DistanceX", 1, 2, -1, 1, 105.0))
pocket3 = body3.newObject("PartDesign::Pocket", "Pocket002")
pocket3.Profile = sketch8
pocket3.Length = 285
pocket3.Midplane = True
doc.recompute()

thickness2 = body3.newObject("PartDesign::Thickness", "Thickness001")
thickness2.Base = (pocket3, faces_at(pocket3, [(0, 0, -1817)]))
thickness2.Value = 5
thickness2.Reversed = True
thickness2.Join = "Arc"

# Sketch on XY plane
sketch9 = body3.newObject("Sketcher::SketchObject", "Sketch008")
sketch9.AttachmentSupport = (doc.getObject("XY_Plane002"), [""])
sketch9.MapMode = "FlatFace"
sketch9.AttachmentOffset = App.Placement(Vector(0, 0, -2005), App.Rotation())
add_polygon(sketch9, [(-100, -100), (-100, 100), (100, 100), (100, -100)])  # lines 0-3
sketch9.addConstraint(Sketcher.Constraint("Vertical", 0))
sketch9.addConstraint(Sketcher.Constraint("Horizontal", 1))
sketch9.addConstraint(Sketcher.Constraint("Vertical", 2))
sketch9.addConstraint(Sketcher.Constraint("Horizontal", 3))
sketch9.addConstraint(Sketcher.Constraint("Symmetric", 0, 2, 2, 2, -1, 1))
sketch9.addConstraint(Sketcher.Constraint("Equal", 3, 0))
sketch9.addConstraint(Sketcher.Constraint("DistanceX", 1, 1, 1, 2, 200.0))
pocket4 = body3.newObject("PartDesign::Pocket", "Pocket003")
pocket4.Profile = sketch9
pocket4.Length = 10
pocket4.Reversed = True
doc.recompute()

boolean = body2.newObject("PartDesign::Boolean", "Boolean")
boolean.Type = "Fuse"
boolean.addObjects([body3])

# Sketch on XY plane
sketch10 = body2.newObject("Sketcher::SketchObject", "Sketch009")
sketch10.AttachmentSupport = (doc.getObject("XY_Plane001"), [""])
sketch10.MapMode = "FlatFace"
sketch10.AttachmentOffset = App.Placement(Vector(0, 0, -2005), App.Rotation())
add_polygon(sketch10, [(-160, -160), (-160, 160), (160, 160), (160, -160)])  # lines 0-3
sketch10.addGeometry(Part.Circle(Vector(-140, 140, 0), Vector(0, 0, 1), 8), False)  # 4
sketch10.addGeometry(Part.Circle(Vector(-47, 140, 0), Vector(0, 0, 1), 8), False)  # 5
sketch10.addGeometry(Part.Circle(Vector(-140, 47, 0), Vector(0, 0, 1), 8), False)  # 6
sketch10.addGeometry(Part.Circle(Vector(47, 140, 0), Vector(0, 0, 1), 8), False)  # 7
sketch10.addGeometry(Part.Circle(Vector(140, 140, 0), Vector(0, 0, 1), 8), False)  # 8
sketch10.addGeometry(Part.Circle(Vector(140, 47, 0), Vector(0, 0, 1), 8), False)  # 9
sketch10.addGeometry(Part.Circle(Vector(-140, -47, 0), Vector(0, 0, 1), 8), False)  # 10
sketch10.addGeometry(Part.Circle(Vector(-140, -140, 0), Vector(0, 0, 1), 8), False)  # 11
sketch10.addGeometry(Part.Circle(Vector(-47, -140, 0), Vector(0, 0, 1), 8), False)  # 12
add_polygon(sketch10, [(105, 105), (-105, 105), (-105, -105), (105, -105)])  # lines 13-16
sketch10.addGeometry(Part.Circle(Vector(140, -47, 0), Vector(0, 0, 1), 8), False)  # 17
sketch10.addGeometry(Part.Circle(Vector(47, -140, 0), Vector(0, 0, 1), 8), False)  # 18
sketch10.addGeometry(Part.Circle(Vector(140, -140, 0), Vector(0, 0, 1), 8), False)  # 19
sketch10.addConstraint(Sketcher.Constraint("Vertical", 0))
sketch10.addConstraint(Sketcher.Constraint("Horizontal", 1))
sketch10.addConstraint(Sketcher.Constraint("Vertical", 2))
sketch10.addConstraint(Sketcher.Constraint("Horizontal", 3))
sketch10.addConstraint(Sketcher.Constraint("Horizontal", 13))
sketch10.addConstraint(Sketcher.Constraint("Vertical", 14))
sketch10.addConstraint(Sketcher.Constraint("Horizontal", 15))
sketch10.addConstraint(Sketcher.Constraint("Vertical", 16))
sketch10.addConstraint(Sketcher.Constraint("Equal", 4, 5))
sketch10.addConstraint(Sketcher.Constraint("Equal", 5, 6))
sketch10.addConstraint(Sketcher.Constraint("Equal", 6, 7))
sketch10.addConstraint(Sketcher.Constraint("Equal", 7, 8))
sketch10.addConstraint(Sketcher.Constraint("Equal", 8, 9))
sketch10.addConstraint(Sketcher.Constraint("Equal", 9, 10))
sketch10.addConstraint(Sketcher.Constraint("Equal", 10, 11))
sketch10.addConstraint(Sketcher.Constraint("Equal", 11, 12))
sketch10.addConstraint(Sketcher.Constraint("Equal", 12, 17))
sketch10.addConstraint(Sketcher.Constraint("Equal", 17, 18))
sketch10.addConstraint(Sketcher.Constraint("Equal", 18, 19))
sketch10.addConstraint(Sketcher.Constraint("Symmetric", 9, 3, 10, 3, -1, 1))
sketch10.addConstraint(Sketcher.Constraint("Symmetric", 8, 3, 11, 3, -1, 1))
sketch10.addConstraint(Sketcher.Constraint("Symmetric", 7, 3, 12, 3, -1, 1))
sketch10.addConstraint(Sketcher.Constraint("Symmetric", 6, 3, 17, 3, -1, 1))
sketch10.addConstraint(Sketcher.Constraint("Symmetric", 5, 3, 18, 3, -1, 1))
sketch10.addConstraint(Sketcher.Constraint("Symmetric", 4, 3, 19, 3, -1, 1))
sketch10.addConstraint(Sketcher.Constraint("Symmetric", 0, 2, 2, 2, -1, 1))
sketch10.addConstraint(Sketcher.Constraint("Symmetric", 13, 2, 15, 2, -1, 1))
sketch10.addConstraint(Sketcher.Constraint("Symmetric", 5, 3, 7, 3, -2))
sketch10.addConstraint(Sketcher.Constraint("Symmetric", 4, 3, 8, 3, -2))
sketch10.addConstraint(Sketcher.Constraint("Symmetric", 6, 3, 9, 3, -2))
sketch10.addConstraint(Sketcher.Constraint("Horizontal", 4, 3, 5, 3))
sketch10.addConstraint(Sketcher.Constraint("Vertical", 4, 3, 6, 3))
sketch10.addConstraint(Sketcher.Constraint("Equal", 3, 0))
sketch10.addConstraint(Sketcher.Constraint("Equal", 15, 14))
sketch10.addConstraint(Sketcher.Constraint("Diameter", 4, 15.0))
sketch10.addConstraint(Sketcher.Constraint("DistanceX", 1, 1, 1, 2, 320.0))
sketch10.addConstraint(Sketcher.Constraint("DistanceX", 13, 2, 13, 1, 210.0))
sketch10.addConstraint(Sketcher.Constraint("DistanceX", 4, 3, -1, 1, 140.0))
sketch10.addConstraint(Sketcher.Constraint("DistanceY", -1, 1, 4, 3, 140.0))
sketch10.addConstraint(Sketcher.Constraint("DistanceX", 5, 3, -1, 1, 46.7))
sketch10.addConstraint(Sketcher.Constraint("DistanceY", -1, 1, 6, 3, 46.7))
pad6 = body2.newObject("PartDesign::Pad", "Pad005")
pad6.Profile = sketch10
pad6.Length = 12

doc.recompute()
